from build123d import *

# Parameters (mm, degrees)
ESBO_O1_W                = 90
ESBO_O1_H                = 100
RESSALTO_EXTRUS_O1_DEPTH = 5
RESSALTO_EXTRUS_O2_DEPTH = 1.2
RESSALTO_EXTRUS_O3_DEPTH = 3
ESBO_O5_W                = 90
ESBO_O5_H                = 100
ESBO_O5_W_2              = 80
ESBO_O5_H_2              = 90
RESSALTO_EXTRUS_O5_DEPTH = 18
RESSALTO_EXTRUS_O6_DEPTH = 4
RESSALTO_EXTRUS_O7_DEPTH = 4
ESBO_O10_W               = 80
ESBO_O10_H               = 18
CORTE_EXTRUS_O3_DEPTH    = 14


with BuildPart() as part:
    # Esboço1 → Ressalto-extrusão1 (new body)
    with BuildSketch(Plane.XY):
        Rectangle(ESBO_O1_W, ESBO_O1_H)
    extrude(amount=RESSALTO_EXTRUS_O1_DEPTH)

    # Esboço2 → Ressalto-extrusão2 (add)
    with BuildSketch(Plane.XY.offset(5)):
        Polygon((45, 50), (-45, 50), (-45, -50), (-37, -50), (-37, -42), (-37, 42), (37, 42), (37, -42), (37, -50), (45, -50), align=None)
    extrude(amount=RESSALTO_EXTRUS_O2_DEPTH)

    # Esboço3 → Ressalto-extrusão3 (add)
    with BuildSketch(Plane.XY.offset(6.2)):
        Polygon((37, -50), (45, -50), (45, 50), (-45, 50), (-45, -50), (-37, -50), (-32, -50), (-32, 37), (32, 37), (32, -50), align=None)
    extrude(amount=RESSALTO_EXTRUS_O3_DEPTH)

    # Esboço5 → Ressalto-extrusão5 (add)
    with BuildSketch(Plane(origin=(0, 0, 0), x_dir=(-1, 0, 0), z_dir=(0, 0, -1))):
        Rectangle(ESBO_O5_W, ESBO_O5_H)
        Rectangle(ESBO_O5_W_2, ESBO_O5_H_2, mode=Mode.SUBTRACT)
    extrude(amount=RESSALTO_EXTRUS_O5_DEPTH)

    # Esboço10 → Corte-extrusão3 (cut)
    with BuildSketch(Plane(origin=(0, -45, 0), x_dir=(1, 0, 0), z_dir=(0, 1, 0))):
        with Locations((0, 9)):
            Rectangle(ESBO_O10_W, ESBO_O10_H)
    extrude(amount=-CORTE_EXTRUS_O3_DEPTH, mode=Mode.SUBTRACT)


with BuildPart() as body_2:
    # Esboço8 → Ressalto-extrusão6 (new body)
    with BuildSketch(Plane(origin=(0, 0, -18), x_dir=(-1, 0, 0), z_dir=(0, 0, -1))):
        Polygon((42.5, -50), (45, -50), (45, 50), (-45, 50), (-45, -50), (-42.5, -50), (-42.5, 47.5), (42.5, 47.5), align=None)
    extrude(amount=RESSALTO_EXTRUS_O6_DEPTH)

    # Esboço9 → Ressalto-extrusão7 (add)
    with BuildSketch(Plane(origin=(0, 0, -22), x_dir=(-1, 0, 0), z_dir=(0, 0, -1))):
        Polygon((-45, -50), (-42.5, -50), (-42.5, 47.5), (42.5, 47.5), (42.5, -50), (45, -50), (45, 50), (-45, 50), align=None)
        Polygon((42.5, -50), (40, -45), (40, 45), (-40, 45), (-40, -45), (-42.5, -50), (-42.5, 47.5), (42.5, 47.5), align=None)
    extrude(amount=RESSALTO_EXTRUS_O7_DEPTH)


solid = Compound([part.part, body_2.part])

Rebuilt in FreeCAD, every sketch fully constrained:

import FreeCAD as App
import Part
import Sketcher

V = App.Vector
Q = App.Units.Quantity

doc = App.newDocument("Part")
body = doc.addObject("PartDesign::Body", "Body")

sketch1 = doc.addObject("Sketcher::SketchObject", "Sketch")
body.addObject(sketch1)
sketch1.AttachmentSupport = (doc.XY_Plane, [""])
sketch1.MapMode = "FlatFace"
sketch1.addGeometry([
    Part.LineSegment(V(-45, 50, 0), V(-45, -50, 0)),
    Part.LineSegment(V(-45, -50, 0), V(45, -50, 0)),
    Part.LineSegment(V(45, -50, 0), V(45, 50, 0)),
    Part.LineSegment(V(45, 50, 0), V(-45, 50, 0)),
], False)
sketch1.addConstraint([
    Sketcher.Constraint("Coincident", 0, 2, 1, 1),
    Sketcher.Constraint("Coincident", 1, 2, 2, 1),
    Sketcher.Constraint("Coincident", 2, 2, 3, 1),
    Sketcher.Constraint("Coincident", 3, 2, 0, 1),
    Sketcher.Constraint("Vertical", 0),
    Sketcher.Constraint("Horizontal", 1),
    Sketcher.Constraint("Vertical", 2),
    Sketcher.Constraint("Horizontal", 3),
    Sketcher.Constraint("Symmetric", 0, 2, 2, 2, -1, 1),
    Sketcher.Constraint("DistanceX", 1, 1, 1, 2, Q("90 mm")),
    Sketcher.Constraint("DistanceY", 0, 2, 0, 1, Q("100 mm")),
])
pad1 = doc.addObject("PartDesign::Pad", "Pad")
body.addObject(pad1)
pad1.Profile = sketch1
pad1.Length = 5

sketch2 = doc.addObject("Sketcher::SketchObject", "Sketch001")
body.addObject(sketch2)
sketch2.AttachmentSupport = (doc.XY_Plane, [""])
sketch2.MapMode = "FlatFace"
sketch2.AttachmentOffset = App.Placement(V(0, 0, 5), App.Rotation())
sketch2.addGeometry([
    Part.LineSegment(V(45, 50, 0), V(-45, 50, 0)),
    Part.LineSegment(V(-45, 50, 0), V(-45, -50, 0)),
    Part.LineSegment(V(-45, -50, 0), V(-37, -50, 0)),
    Part.LineSegment(V(-37, -50, 0), V(-37, 42, 0)),
    Part.LineSegment(V(-37, 42, 0), V(37, 42, 0)),
    Part.LineSegment(V(37, 42, 0), V(37, -50, 0)),
    Part.LineSegment(V(37, -50, 0), V(45, -50, 0)),
    Part.LineSegment(V(45, -50, 0), V(45, 50, 0)),
], False)
sketch2.addConstraint([
    Sketcher.Constraint("Coincident", 0, 2, 1, 1),
    Sketcher.Constraint("Coincident", 1, 2, 2, 1),
    Sketcher.Constraint("Coincident", 2, 2, 3, 1),
    Sketcher.Constraint("Coincident", 3, 2, 4, 1),
    Sketcher.Constraint("Coincident", 4, 2, 5, 1),
    Sketcher.Constraint("Coincident", 5, 2, 6, 1),
    Sketcher.Constraint("Coincident", 6, 2, 7, 1),
    Sketcher.Constraint("Coincident", 7, 2, 0, 1),
    Sketcher.Constraint("Horizontal", 0),
    Sketcher.Constraint("Vertical", 1),
    Sketcher.Constraint("Horizontal", 2),
    Sketcher.Constraint("Vertical", 3),
    Sketcher.Constraint("Horizontal", 4),
    Sketcher.Constraint("Vertical", 5),
    Sketcher.Constraint("Horizontal", 6),
    Sketcher.Constraint("Vertical", 7),
    Sketcher.Constraint("Symmetric", 0, 2, 6, 2, -1, 1),
    Sketcher.Constraint("Symmetric", 2, 2, 5, 2, -2),
    Sketcher.Constraint("DistanceX", 0, 2, 0, 1, Q("90 mm")),
    Sketcher.Constraint("DistanceX", 2, 1, 2, 2, Q("8 mm")),
    Sketcher.Constraint("DistanceY", 1, 2, 1, 1, Q("100 mm")),
    Sketcher.Constraint("DistanceY", 3, 1, 3, 2, Q("92 mm")),
])
pad2 = doc.addObject("PartDesign::Pad", "Pad001")
body.addObject(pad2)
pad2.Profile = sketch2
pad2.Length = 1.2

sketch3 = doc.addObject("Sketcher::SketchObject", "Sketch002")
body.addObject(sketch3)
sketch3.AttachmentSupport = (doc.XY_Plane, [""])
sketch3.MapMode = "FlatFace"
sketch3.AttachmentOffset = App.Placement(V(0, 0, 6.2), App.Rotation())
sketch3.addGeometry([
    Part.LineSegment(V(45, -50, 0), V(45, 50, 0)),
    Part.LineSegment(V(45, 50, 0), V(-45, 50, 0)),
    Part.LineSegment(V(-45, 50, 0), V(-45, -50, 0)),
    Part.LineSegment(V(-45, -50, 0), V(-32, -50, 0)),
    Part.LineSegment(V(-32, -50, 0), V(-32, 37, 0)),
    Part.LineSegment(V(-32, 37, 0), V(32, 37, 0)),
    Part.LineSegment(V(32, 37, 0), V(32, -50, 0)),
    Part.LineSegment(V(32, -50, 0), V(45, -50, 0)),
], False)
sketch3.addConstraint([
    Sketcher.Constraint("Coincident", 0, 2, 1, 1),
    Sketcher.Constraint("Coincident", 1, 2, 2, 1),
    Sketcher.Constraint("Coincident", 2, 2, 3, 1),
    Sketcher.Constraint("Coincident", 3, 2, 4, 1),
    Sketcher.Constraint("Coincident", 4, 2, 5, 1),
    Sketcher.Constraint("Coincident", 5, 2, 6, 1),
    Sketcher.Constraint("Coincident", 6, 2, 7, 1),
    Sketcher.Constraint("Coincident", 7, 2, 0, 1),
    Sketcher.Constraint("Vertical", 0),
    Sketcher.Constraint("Horizontal", 1),
    Sketcher.Constraint("Vertical", 2),
    Sketcher.Constraint("Horizontal", 3),
    Sketcher.Constraint("Vertical", 4),
    Sketcher.Constraint("Horizontal", 5),
    Sketcher.Constraint("Vertical", 6),
    Sketcher.Constraint("Horizontal", 7),
    Sketcher.Constraint("Symmetric", 0, 2, 2, 2, -1, 1),
    Sketcher.Constraint("Symmetric", 3, 2, 6, 2, -2),
    Sketcher.Constraint("DistanceX", 1, 2, 1, 1, Q("90 mm")),
    Sketcher.Constraint("DistanceX", 3, 1, 3, 2, Q("13 mm")),
    Sketcher.Constraint("DistanceY", 0, 1, 0, 2, Q("100 mm")),
    Sketcher.Constraint("DistanceY", 4, 1, 4, 2, Q("87 mm")),
])
pad3 = doc.addObject("PartDesign::Pad", "Pad002")
body.addObject(pad3)
pad3.Profile = sketch3
pad3.Length = 3

sketch4 = doc.addObject("Sketcher::SketchObject", "Sketch003")
body.addObject(sketch4)
sketch4.AttachmentSupport = (doc.XY_Plane, [""])
sketch4.MapMode = "FlatFace"
sketch4.addGeometry([
    Part.LineSegment(V(45, 50, 0), V(45, -50, 0)),
    Part.LineSegment(V(45, -50, 0), V(-45, -50, 0)),
    Part.LineSegment(V(-45, -50, 0), V(-45, 50, 0)),
    Part.LineSegment(V(-45, 50, 0), V(45, 50, 0)),
    Part.LineSegment(V(-40, -45, 0), V(40, -45, 0)),
    Part.LineSegment(V(40, -45, 0), V(40, 45, 0)),
    Part.LineSegment(V(40, 45, 0), V(-40, 45, 0)),
    Part.LineSegment(V(-40, 45, 0), V(-40, -45, 0)),
], False)
sketch4.addConstraint([
    Sketcher.Constraint("Coincident", 0, 2, 1, 1),
    Sketcher.Constraint("Coincident", 1, 2, 2, 1),
    Sketcher.Constraint("Coincident", 2, 2, 3, 1),
    Sketcher.Constraint("Coincident", 3, 2, 0, 1),
    Sketcher.Constraint("Coincident", 4, 2, 5, 1),
    Sketcher.Constraint("Coincident", 5, 2, 6, 1),
    Sketcher.Constraint("Coincident", 6, 2, 7, 1),
    Sketcher.Constraint("Coincident", 7, 2, 4, 1),
    Sketcher.Constraint("Vertical", 0),
    Sketcher.Constraint("Horizontal", 1),
    Sketcher.Constraint("Vertical", 2),
    Sketcher.Constraint("Horizontal", 3),
    Sketcher.Constraint("Horizontal", 4),
    Sketcher.Constraint("Vertical", 5),
    Sketcher.Constraint("Horizontal", 6),
    Sketcher.Constraint("Vertical", 7),
    Sketcher.Constraint("Symmetric", 0, 2, 2, 2, -1, 1),
    Sketcher.Constraint("Symmetric", 4, 2, 6, 2, -1, 1),
    Sketcher.Constraint("Equal", 3, 5),
    Sketcher.Constraint("DistanceX", 1, 2, 1, 1, Q("90 mm")),
    Sketcher.Constraint("DistanceX", 4, 1, 4, 2, Q("80 mm")),
    Sketcher.Constraint("DistanceY", 0, 2, 0, 1, Q("100 mm")),
])
pad4 = doc.addObject("PartDesign::Pad", "Pad003")
body.addObject(pad4)
pad4.Profile = sketch4
pad4.Length = 18
pad4.Reversed = True

sketch5 = doc.addObject("Sketcher::SketchObject", "Sketch004")
body.addObject(sketch5)
sketch5.AttachmentSupport = (doc.XZ_Plane, [""])
sketch5.MapMode = "FlatFace"
sketch5.AttachmentOffset = App.Placement(V(0, 0, 45), App.Rotation())
sketch5.addGeometry([
    Part.LineSegment(V(-40, -18, 0), V(-40, 0, 0)),
    Part.LineSegment(V(-40, 0, 0), V(40, 0, 0)),
    Part.LineSegment(V(40, 0, 0), V(40, -18, 0)),
    Part.LineSegment(V(40, -18, 0), V(-40, -18, 0)),
], False)
sketch5.addConstraint([
    Sketcher.Constraint("Coincident", 0, 2, 1, 1),
    Sketcher.Constraint("Coincident", 1, 2, 2, 1),
    Sketcher.Constraint("Coincident", 2, 2, 3, 1),
    Sketcher.Constraint("Coincident", 3, 2, 0, 1),
    Sketcher.Constraint("Vertical", 0),
    Sketcher.Constraint("Horizontal", 1),
    Sketcher.Constraint("Vertical", 2),
    Sketcher.Constraint("Horizontal", 3),
    Sketcher.Constraint("Symmetric", 0, 2, 1, 2, -1, 1),
    Sketcher.Constraint("DistanceX", 1, 1, 1, 2, Q("80 mm")),
    Sketcher.Constraint("DistanceY", 0, 1, 0, 2, Q("18 mm")),
])
pocket1 = doc.addObject("PartDesign::Pocket", "Pocket")
body.addObject(pocket1)
pocket1.Profile = sketch5
pocket1.Length = 14
pocket1.Reversed = True
body2 = doc.addObject("PartDesign::Body", "Body001")

sketch6 = doc.addObject("Sketcher::SketchObject", "Sketch005")
body2.addObject(sketch6)
sketch6.AttachmentSupport = (doc.getObject("XY_Plane001"), [""])
sketch6.MapMode = "FlatFace"
sketch6.AttachmentOffset = App.Placement(V(0, 0, -18), App.Rotation())
sketch6.addGeometry([
    Part.LineSegment(V(-42.5, -50, 0), V(-45, -50, 0)),
    Part.LineSegment(V(-45, -50, 0), V(-45, 50, 0)),
    Part.LineSegment(V(-45, 50, 0), V(45, 50, 0)),
    Part.LineSegment(V(45, 50, 0), V(45, -50, 0)),
    Part.LineSegment(V(45, -50, 0), V(42.5, -50, 0)),
    Part.LineSegment(V(42.5, -50, 0), V(42.5, 47.5, 0)),
    Part.LineSegment(V(42.5, 47.5, 0), V(-42.5, 47.5, 0)),
    Part.LineSegment(V(-42.5, 47.5, 0), V(-42.5, -50, 0)),
], False)
sketch6.addConstraint([
    Sketcher.Constraint("Coincident", 0, 2, 1, 1),
    Sketcher.Constraint("Coincident", 1, 2, 2, 1),
    Sketcher.Constraint("Coincident", 2, 2, 3, 1),
    Sketcher.Constraint("Coincident", 3, 2, 4, 1),
    Sketcher.Constraint("Coincident", 4, 2, 5, 1),
    Sketcher.Constraint("Coincident", 5, 2, 6, 1),
    Sketcher.Constraint("Coincident", 6, 2, 7, 1),
    Sketcher.Constraint("Coincident", 7, 2, 0, 1),
    Sketcher.Constraint("Horizontal", 0),
    Sketcher.Constraint("Vertical", 1),
    Sketcher.Constraint("Horizontal", 2),
    Sketcher.Constraint("Vertical", 3),
    Sketcher.Constraint("Horizontal", 4),
    Sketcher.Constraint("Vertical", 5),
    Sketcher.Constraint("Horizontal", 6),
    Sketcher.Constraint("Vertical", 7),
    Sketcher.Constraint("Symmetric", 0, 2, 2, 2, -1, 1),
    Sketcher.Constraint("Symmetric", 4, 2, 7, 2, -2),
    Sketcher.Constraint("DistanceX", 2, 1, 2, 2, Q("90 mm")),
    Sketcher.Constraint("DistanceX", 6, 2, 6, 1, Q("85 mm")),
    Sketcher.Constraint("DistanceY", 1, 1, 1, 2, Q("100 mm")),
    Sketcher.Constraint("DistanceY", 5, 1, 5, 2, Q("97.5 mm")),
])
pad5 = doc.addObject("PartDesign::Pad", "Pad004")
body2.addObject(pad5)
pad5.Profile = sketch6
pad5.Length = 4
pad5.Reversed = True

sketch7 = doc.addObject("Sketcher::SketchObject", "Sketch006")
body2.addObject(sketch7)
sketch7.AttachmentSupport = (doc.getObject("XY_Plane001"), [""])
sketch7.MapMode = "FlatFace"
sketch7.AttachmentOffset = App.Placement(V(0, 0, -22), App.Rotation())
sketch7.addGeometry([
    Part.LineSegment(V(45, -50, 0), V(42.5, -50, 0)),
    Part.LineSegment(V(42.5, -50, 0), V(40, -45, 0)),
    Part.LineSegment(V(40, -45, 0), V(40, 45, 0)),
    Part.LineSegment(V(40, 45, 0), V(-40, 45, 0)),
    Part.LineSegment(V(-40, 45, 0), V(-40, -45, 0)),
    Part.LineSegment(V(-40, -45, 0), V(-42.5, -50, 0)),
    Part.LineSegment(V(-42.5, -50, 0), V(-45, -50, 0)),
    Part.LineSegment(V(-45, -50, 0), V(-45, 50, 0)),
    Part.LineSegment(V(-45, 50, 0), V(45, 50, 0)),
    Part.LineSegment(V(45, 50, 0), V(45, -50, 0)),
], False)
sketch7.addConstraint([
    Sketcher.Constraint("Coincident", 0, 2, 1, 1),
    Sketcher.Constraint("Coincident", 1, 2, 2, 1),
    Sketcher.Constraint("Coincident", 2, 2, 3, 1),
    Sketcher.Constraint("Coincident", 3, 2, 4, 1),
    Sketcher.Constraint("Coincident", 4, 2, 5, 1),
    Sketcher.Constraint("Coincident", 5, 2, 6, 1),
    Sketcher.Constraint("Coincident", 6, 2, 7, 1),
    Sketcher.Constraint("Coincident", 7, 2, 8, 1),
    Sketcher.Constraint("Coincident", 8, 2, 9, 1),
    Sketcher.Constraint("Coincident", 9, 2, 0, 1),
    Sketcher.Constraint("Horizontal", 0),
    Sketcher.Constraint("Vertical", 2),
    Sketcher.Constraint("Horizontal", 3),
    Sketcher.Constraint("Vertical", 4),
    Sketcher.Constraint("Horizontal", 6),
    Sketcher.Constraint("Vertical", 7),
    Sketcher.Constraint("Horizontal", 8),
    Sketcher.Constraint("Vertical", 9),
    Sketcher.Constraint("Symmetric", 1, 2, 3, 2, -1, 1),
    Sketcher.Constraint("Symmetric", 6, 2, 8, 2, -1, 1),
    Sketcher.Constraint("Symmetric", 0, 2, 5, 2, -2),
    Sketcher.Constraint("Horizontal", 1, 2, 4, 2),
    Sketcher.Constraint("Equal", 8, 2),
    Sketcher.Constraint("DistanceX", 3, 2, 3, 1, Q("80 mm")),
    Sketcher.Constraint("DistanceX", 8, 1, 8, 2, Q("90 mm")),
    Sketcher.Constraint("DistanceY", 7, 1, 7, 2, Q("100 mm")),
    Sketcher.Constraint("DistanceX", 0, 2, 0, 1, Q("2.5 mm")),
])
pad6 = doc.addObject("PartDesign::Pad", "Pad005")
body2.addObject(pad6)
pad6.Profile = sketch7
pad6.Length = 4
pad6.Reversed = True

doc.recompute()
